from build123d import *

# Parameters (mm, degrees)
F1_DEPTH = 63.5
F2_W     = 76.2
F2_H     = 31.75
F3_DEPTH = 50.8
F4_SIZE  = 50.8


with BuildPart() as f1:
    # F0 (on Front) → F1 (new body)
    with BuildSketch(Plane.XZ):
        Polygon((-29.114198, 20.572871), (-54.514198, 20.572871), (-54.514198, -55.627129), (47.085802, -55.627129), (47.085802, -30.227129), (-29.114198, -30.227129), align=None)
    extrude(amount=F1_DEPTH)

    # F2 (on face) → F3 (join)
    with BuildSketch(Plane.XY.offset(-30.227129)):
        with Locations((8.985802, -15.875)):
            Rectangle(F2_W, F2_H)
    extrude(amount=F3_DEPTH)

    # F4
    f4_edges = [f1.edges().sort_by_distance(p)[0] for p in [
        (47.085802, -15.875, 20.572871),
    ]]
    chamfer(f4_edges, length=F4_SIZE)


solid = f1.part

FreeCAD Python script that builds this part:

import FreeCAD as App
import Part
import Sketcher

V = App.Vector
Q = App.Units.Quantity


def edges_at(feature, points):
    """Names of the edges that pass closest to the given points."""
    edges = feature.Shape.Edges
    near = lambda p: min(range(len(edges)), key=lambda i: edges[i].distToShape(Part.Vertex(*p))[0])
    return sorted({f"Edge{near(p) + 1}" for p in points})


def add_polygon(sketch, points):
    """Adds a closed chain of lines whose ends are joined by coincident constraints."""
    first, n = sketch.GeometryCount, len(points)
    for a, b in zip(points, points[1:] + points[:1]):
        sketch.addGeometry(Part.LineSegment(App.Vector(*a, 0), App.Vector(*b, 0)), False)
    for i in range(n):
        sketch.addConstraint(Sketcher.Constraint("Coincident", first + i, 2, first + (i + 1) % n, 1))

doc = App.newDocument("Part")
params = doc.addObject("Spreadsheet::Sheet", "Params")
for row, (alias, value) in enumerate([
    ("sketch1_width", "1 in"),
    ("sketch1_width2", "4 in"),
    ("pad1_length", "2.5 in"),
    ("sketch2_width", "3 in"),
    ("sketch2_height", "1.25 in"),
    ("pad2_length", "2 in"),
    ("chamfer_size", "2 in"),
], start=1):
    params.set(f"A{row}", alias)
    params.set(f"B{row}", "=" + value)
    params.setAlias(f"B{row}", alias)

body = doc.addObject("PartDesign::Body", "Body")

# Sketch on XZ plane
sketch1 = body.newObject("Sketcher::SketchObject", "Sketch")
sketch1.AttachmentSupport = (doc.getObject("XZ_Plane"), [""])
sketch1.MapMode = "FlatFace"
add_polygon(sketch1, [(-29, 21), (-55, 21), (-55, -56), (47, -56), (47, -30), (-29, -30)])  # lines 0-5
sketch1.addConstraint(Sketcher.Constraint("Horizontal", 0))
sketch1.addConstraint(Sketcher.Constraint("Vertical", 1))
sketch1.addConstraint(Sketcher.Constraint("Horizontal", 2))
sketch1.addConstraint(Sketcher.Constraint("Vertical", 3))
sketch1.addConstraint(Sketcher.Constraint("Horizontal", 4))
sketch1.addConstraint(Sketcher.Constraint("Vertical", 5))
sketch1.addConstraint(Sketcher.Constraint("Equal", 4, 1))
sketch1.addConstraint(Sketcher.Constraint("Equal", 0, 3))
sketch1.addConstraint(Sketcher.Constraint("DistanceX", 0, 2, 0, 1, Q("1 in")))
sketch1.addConstraint(Sketcher.Constraint("DistanceX", 2, 1, 2, 2, Q("4 in")))
sketch1.addConstraint(Sketcher.Constraint("DistanceY", -1, 1, 0, 2, Q("20.572871 mm")))
sketch1.addConstraint(Sketcher.Constraint("DistanceX", 0, 2, -1, 1, Q("54.514198 mm")))
sketch1.setExpression("Constraints[14]", "Params.sketch1_width")
sketch1.setExpression("Constraints[15]", "Params.sketch1_width2")
pad1 = body.newObject("PartDesign::Pad", "Pad")
pad1.Profile = sketch1
pad1.setExpression("Length", "Params.pad1_length")

# Sketch on XY plane
sketch2 = body.newObject("Sketcher::SketchObject", "Sketch001")
sketch2.AttachmentSupport = (doc.getObject("XY_Plane"), [""])
sketch2.MapMode = "FlatFace"
sketch2.AttachmentOffset = App.Placement(V(0, 0, -30.227129), App.Rotation())
add_polygon(sketch2, [(-29, 0), (-29, -32), (47, -32), (47, 0)])  # lines 0-3
sketch2.addConstraint(Sketcher.Constraint("Vertical", 0))
sketch2.addConstraint(Sketcher.Constraint("Horizontal", 1))
sketch2.addConstraint(Sketcher.Constraint("Vertical", 2))
sketch2.addConstraint(Sketcher.Constraint("Horizontal", 3))
sketch2.addConstraint(Sketcher.Constraint("PointOnObject", 2, 2, -1))
sketch2.addConstraint(Sketcher.Constraint("DistanceX", 1, 1, 1, 2, Q("3 in")))
sketch2.addConstraint(Sketcher.Constraint("DistanceY", 0, 2, 0, 1, Q("1.25 in")))
sketch2.addConstraint(Sketcher.Constraint("DistanceX", 0, 2, -1, 1, Q("29.114198 mm")))
sketch2.setExpression("Constraints[9]", "Params.sketch2_width")
sketch2.setExpression("Constraints[10]", "Params.sketch2_height")
pad2 = body.newObject("PartDesign::Pad", "Pad001")
pad2.Profile = sketch2
pad2.setExpression("Length", "Params.pad2_length")
doc.recompute()

chamfer = body.newObject("PartDesign::Chamfer", "Chamfer")
chamfer.Base = (pad2, edges_at(pad2, [(47.086, -15.875, 20.573)]))
chamfer.setExpression("Size", "Params.chamfer_size")

doc.recompute()
